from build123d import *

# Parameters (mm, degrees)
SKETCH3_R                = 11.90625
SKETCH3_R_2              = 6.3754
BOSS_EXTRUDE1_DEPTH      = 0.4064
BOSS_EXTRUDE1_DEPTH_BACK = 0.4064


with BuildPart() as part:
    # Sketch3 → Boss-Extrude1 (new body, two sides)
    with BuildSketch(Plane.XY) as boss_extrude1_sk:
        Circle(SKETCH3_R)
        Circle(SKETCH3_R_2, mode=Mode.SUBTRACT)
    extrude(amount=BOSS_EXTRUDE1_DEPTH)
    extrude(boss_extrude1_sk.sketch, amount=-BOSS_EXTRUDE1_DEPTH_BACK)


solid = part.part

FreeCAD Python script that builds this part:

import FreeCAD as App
import Part
import Sketcher
from FreeCAD import Vector
Q = App.Units.Quantity

doc = App.newDocument("Part")
body = doc.addObject("PartDesign::Body", "Body")

sketch1 = body.newObject("Sketcher::SketchObject", "Sketch")
sketch1.AttachmentSupport = (doc.getObject("XY_Plane"), [""])
sketch1.MapMode = "FlatFace"
sketch1.addGeometry(Part.Circle(Vector(0, 0, 0), Vector(0, 0, 1), 12), False)
sketch1.addGeometry(Part.Circle(Vector(0, 0, 0), Vector(0, 0, 1), 6), False)
sketch1.addConstraint(Sketcher.Constraint("Coincident", 0, 3, -1, 1))
sketch1.addConstraint(Sketcher.Constraint("Coincident", 1, 3, -1, 1))
sketch1.addConstraint(Sketcher.Constraint("Diameter", 0, Q("0.9375 in")))
sketch1.addConstraint(Sketcher.Constraint("Diameter", 1, Q("0.502 in")))
pad1 = body.newObject("PartDesign::Pad", "Pad")
pad1.Profile = sketch1
pad1.Type = "TwoLengths"
pad1.Length = Q("0.016 in")
pad1.Length2 = Q("0.016 in")

doc.recompute()
